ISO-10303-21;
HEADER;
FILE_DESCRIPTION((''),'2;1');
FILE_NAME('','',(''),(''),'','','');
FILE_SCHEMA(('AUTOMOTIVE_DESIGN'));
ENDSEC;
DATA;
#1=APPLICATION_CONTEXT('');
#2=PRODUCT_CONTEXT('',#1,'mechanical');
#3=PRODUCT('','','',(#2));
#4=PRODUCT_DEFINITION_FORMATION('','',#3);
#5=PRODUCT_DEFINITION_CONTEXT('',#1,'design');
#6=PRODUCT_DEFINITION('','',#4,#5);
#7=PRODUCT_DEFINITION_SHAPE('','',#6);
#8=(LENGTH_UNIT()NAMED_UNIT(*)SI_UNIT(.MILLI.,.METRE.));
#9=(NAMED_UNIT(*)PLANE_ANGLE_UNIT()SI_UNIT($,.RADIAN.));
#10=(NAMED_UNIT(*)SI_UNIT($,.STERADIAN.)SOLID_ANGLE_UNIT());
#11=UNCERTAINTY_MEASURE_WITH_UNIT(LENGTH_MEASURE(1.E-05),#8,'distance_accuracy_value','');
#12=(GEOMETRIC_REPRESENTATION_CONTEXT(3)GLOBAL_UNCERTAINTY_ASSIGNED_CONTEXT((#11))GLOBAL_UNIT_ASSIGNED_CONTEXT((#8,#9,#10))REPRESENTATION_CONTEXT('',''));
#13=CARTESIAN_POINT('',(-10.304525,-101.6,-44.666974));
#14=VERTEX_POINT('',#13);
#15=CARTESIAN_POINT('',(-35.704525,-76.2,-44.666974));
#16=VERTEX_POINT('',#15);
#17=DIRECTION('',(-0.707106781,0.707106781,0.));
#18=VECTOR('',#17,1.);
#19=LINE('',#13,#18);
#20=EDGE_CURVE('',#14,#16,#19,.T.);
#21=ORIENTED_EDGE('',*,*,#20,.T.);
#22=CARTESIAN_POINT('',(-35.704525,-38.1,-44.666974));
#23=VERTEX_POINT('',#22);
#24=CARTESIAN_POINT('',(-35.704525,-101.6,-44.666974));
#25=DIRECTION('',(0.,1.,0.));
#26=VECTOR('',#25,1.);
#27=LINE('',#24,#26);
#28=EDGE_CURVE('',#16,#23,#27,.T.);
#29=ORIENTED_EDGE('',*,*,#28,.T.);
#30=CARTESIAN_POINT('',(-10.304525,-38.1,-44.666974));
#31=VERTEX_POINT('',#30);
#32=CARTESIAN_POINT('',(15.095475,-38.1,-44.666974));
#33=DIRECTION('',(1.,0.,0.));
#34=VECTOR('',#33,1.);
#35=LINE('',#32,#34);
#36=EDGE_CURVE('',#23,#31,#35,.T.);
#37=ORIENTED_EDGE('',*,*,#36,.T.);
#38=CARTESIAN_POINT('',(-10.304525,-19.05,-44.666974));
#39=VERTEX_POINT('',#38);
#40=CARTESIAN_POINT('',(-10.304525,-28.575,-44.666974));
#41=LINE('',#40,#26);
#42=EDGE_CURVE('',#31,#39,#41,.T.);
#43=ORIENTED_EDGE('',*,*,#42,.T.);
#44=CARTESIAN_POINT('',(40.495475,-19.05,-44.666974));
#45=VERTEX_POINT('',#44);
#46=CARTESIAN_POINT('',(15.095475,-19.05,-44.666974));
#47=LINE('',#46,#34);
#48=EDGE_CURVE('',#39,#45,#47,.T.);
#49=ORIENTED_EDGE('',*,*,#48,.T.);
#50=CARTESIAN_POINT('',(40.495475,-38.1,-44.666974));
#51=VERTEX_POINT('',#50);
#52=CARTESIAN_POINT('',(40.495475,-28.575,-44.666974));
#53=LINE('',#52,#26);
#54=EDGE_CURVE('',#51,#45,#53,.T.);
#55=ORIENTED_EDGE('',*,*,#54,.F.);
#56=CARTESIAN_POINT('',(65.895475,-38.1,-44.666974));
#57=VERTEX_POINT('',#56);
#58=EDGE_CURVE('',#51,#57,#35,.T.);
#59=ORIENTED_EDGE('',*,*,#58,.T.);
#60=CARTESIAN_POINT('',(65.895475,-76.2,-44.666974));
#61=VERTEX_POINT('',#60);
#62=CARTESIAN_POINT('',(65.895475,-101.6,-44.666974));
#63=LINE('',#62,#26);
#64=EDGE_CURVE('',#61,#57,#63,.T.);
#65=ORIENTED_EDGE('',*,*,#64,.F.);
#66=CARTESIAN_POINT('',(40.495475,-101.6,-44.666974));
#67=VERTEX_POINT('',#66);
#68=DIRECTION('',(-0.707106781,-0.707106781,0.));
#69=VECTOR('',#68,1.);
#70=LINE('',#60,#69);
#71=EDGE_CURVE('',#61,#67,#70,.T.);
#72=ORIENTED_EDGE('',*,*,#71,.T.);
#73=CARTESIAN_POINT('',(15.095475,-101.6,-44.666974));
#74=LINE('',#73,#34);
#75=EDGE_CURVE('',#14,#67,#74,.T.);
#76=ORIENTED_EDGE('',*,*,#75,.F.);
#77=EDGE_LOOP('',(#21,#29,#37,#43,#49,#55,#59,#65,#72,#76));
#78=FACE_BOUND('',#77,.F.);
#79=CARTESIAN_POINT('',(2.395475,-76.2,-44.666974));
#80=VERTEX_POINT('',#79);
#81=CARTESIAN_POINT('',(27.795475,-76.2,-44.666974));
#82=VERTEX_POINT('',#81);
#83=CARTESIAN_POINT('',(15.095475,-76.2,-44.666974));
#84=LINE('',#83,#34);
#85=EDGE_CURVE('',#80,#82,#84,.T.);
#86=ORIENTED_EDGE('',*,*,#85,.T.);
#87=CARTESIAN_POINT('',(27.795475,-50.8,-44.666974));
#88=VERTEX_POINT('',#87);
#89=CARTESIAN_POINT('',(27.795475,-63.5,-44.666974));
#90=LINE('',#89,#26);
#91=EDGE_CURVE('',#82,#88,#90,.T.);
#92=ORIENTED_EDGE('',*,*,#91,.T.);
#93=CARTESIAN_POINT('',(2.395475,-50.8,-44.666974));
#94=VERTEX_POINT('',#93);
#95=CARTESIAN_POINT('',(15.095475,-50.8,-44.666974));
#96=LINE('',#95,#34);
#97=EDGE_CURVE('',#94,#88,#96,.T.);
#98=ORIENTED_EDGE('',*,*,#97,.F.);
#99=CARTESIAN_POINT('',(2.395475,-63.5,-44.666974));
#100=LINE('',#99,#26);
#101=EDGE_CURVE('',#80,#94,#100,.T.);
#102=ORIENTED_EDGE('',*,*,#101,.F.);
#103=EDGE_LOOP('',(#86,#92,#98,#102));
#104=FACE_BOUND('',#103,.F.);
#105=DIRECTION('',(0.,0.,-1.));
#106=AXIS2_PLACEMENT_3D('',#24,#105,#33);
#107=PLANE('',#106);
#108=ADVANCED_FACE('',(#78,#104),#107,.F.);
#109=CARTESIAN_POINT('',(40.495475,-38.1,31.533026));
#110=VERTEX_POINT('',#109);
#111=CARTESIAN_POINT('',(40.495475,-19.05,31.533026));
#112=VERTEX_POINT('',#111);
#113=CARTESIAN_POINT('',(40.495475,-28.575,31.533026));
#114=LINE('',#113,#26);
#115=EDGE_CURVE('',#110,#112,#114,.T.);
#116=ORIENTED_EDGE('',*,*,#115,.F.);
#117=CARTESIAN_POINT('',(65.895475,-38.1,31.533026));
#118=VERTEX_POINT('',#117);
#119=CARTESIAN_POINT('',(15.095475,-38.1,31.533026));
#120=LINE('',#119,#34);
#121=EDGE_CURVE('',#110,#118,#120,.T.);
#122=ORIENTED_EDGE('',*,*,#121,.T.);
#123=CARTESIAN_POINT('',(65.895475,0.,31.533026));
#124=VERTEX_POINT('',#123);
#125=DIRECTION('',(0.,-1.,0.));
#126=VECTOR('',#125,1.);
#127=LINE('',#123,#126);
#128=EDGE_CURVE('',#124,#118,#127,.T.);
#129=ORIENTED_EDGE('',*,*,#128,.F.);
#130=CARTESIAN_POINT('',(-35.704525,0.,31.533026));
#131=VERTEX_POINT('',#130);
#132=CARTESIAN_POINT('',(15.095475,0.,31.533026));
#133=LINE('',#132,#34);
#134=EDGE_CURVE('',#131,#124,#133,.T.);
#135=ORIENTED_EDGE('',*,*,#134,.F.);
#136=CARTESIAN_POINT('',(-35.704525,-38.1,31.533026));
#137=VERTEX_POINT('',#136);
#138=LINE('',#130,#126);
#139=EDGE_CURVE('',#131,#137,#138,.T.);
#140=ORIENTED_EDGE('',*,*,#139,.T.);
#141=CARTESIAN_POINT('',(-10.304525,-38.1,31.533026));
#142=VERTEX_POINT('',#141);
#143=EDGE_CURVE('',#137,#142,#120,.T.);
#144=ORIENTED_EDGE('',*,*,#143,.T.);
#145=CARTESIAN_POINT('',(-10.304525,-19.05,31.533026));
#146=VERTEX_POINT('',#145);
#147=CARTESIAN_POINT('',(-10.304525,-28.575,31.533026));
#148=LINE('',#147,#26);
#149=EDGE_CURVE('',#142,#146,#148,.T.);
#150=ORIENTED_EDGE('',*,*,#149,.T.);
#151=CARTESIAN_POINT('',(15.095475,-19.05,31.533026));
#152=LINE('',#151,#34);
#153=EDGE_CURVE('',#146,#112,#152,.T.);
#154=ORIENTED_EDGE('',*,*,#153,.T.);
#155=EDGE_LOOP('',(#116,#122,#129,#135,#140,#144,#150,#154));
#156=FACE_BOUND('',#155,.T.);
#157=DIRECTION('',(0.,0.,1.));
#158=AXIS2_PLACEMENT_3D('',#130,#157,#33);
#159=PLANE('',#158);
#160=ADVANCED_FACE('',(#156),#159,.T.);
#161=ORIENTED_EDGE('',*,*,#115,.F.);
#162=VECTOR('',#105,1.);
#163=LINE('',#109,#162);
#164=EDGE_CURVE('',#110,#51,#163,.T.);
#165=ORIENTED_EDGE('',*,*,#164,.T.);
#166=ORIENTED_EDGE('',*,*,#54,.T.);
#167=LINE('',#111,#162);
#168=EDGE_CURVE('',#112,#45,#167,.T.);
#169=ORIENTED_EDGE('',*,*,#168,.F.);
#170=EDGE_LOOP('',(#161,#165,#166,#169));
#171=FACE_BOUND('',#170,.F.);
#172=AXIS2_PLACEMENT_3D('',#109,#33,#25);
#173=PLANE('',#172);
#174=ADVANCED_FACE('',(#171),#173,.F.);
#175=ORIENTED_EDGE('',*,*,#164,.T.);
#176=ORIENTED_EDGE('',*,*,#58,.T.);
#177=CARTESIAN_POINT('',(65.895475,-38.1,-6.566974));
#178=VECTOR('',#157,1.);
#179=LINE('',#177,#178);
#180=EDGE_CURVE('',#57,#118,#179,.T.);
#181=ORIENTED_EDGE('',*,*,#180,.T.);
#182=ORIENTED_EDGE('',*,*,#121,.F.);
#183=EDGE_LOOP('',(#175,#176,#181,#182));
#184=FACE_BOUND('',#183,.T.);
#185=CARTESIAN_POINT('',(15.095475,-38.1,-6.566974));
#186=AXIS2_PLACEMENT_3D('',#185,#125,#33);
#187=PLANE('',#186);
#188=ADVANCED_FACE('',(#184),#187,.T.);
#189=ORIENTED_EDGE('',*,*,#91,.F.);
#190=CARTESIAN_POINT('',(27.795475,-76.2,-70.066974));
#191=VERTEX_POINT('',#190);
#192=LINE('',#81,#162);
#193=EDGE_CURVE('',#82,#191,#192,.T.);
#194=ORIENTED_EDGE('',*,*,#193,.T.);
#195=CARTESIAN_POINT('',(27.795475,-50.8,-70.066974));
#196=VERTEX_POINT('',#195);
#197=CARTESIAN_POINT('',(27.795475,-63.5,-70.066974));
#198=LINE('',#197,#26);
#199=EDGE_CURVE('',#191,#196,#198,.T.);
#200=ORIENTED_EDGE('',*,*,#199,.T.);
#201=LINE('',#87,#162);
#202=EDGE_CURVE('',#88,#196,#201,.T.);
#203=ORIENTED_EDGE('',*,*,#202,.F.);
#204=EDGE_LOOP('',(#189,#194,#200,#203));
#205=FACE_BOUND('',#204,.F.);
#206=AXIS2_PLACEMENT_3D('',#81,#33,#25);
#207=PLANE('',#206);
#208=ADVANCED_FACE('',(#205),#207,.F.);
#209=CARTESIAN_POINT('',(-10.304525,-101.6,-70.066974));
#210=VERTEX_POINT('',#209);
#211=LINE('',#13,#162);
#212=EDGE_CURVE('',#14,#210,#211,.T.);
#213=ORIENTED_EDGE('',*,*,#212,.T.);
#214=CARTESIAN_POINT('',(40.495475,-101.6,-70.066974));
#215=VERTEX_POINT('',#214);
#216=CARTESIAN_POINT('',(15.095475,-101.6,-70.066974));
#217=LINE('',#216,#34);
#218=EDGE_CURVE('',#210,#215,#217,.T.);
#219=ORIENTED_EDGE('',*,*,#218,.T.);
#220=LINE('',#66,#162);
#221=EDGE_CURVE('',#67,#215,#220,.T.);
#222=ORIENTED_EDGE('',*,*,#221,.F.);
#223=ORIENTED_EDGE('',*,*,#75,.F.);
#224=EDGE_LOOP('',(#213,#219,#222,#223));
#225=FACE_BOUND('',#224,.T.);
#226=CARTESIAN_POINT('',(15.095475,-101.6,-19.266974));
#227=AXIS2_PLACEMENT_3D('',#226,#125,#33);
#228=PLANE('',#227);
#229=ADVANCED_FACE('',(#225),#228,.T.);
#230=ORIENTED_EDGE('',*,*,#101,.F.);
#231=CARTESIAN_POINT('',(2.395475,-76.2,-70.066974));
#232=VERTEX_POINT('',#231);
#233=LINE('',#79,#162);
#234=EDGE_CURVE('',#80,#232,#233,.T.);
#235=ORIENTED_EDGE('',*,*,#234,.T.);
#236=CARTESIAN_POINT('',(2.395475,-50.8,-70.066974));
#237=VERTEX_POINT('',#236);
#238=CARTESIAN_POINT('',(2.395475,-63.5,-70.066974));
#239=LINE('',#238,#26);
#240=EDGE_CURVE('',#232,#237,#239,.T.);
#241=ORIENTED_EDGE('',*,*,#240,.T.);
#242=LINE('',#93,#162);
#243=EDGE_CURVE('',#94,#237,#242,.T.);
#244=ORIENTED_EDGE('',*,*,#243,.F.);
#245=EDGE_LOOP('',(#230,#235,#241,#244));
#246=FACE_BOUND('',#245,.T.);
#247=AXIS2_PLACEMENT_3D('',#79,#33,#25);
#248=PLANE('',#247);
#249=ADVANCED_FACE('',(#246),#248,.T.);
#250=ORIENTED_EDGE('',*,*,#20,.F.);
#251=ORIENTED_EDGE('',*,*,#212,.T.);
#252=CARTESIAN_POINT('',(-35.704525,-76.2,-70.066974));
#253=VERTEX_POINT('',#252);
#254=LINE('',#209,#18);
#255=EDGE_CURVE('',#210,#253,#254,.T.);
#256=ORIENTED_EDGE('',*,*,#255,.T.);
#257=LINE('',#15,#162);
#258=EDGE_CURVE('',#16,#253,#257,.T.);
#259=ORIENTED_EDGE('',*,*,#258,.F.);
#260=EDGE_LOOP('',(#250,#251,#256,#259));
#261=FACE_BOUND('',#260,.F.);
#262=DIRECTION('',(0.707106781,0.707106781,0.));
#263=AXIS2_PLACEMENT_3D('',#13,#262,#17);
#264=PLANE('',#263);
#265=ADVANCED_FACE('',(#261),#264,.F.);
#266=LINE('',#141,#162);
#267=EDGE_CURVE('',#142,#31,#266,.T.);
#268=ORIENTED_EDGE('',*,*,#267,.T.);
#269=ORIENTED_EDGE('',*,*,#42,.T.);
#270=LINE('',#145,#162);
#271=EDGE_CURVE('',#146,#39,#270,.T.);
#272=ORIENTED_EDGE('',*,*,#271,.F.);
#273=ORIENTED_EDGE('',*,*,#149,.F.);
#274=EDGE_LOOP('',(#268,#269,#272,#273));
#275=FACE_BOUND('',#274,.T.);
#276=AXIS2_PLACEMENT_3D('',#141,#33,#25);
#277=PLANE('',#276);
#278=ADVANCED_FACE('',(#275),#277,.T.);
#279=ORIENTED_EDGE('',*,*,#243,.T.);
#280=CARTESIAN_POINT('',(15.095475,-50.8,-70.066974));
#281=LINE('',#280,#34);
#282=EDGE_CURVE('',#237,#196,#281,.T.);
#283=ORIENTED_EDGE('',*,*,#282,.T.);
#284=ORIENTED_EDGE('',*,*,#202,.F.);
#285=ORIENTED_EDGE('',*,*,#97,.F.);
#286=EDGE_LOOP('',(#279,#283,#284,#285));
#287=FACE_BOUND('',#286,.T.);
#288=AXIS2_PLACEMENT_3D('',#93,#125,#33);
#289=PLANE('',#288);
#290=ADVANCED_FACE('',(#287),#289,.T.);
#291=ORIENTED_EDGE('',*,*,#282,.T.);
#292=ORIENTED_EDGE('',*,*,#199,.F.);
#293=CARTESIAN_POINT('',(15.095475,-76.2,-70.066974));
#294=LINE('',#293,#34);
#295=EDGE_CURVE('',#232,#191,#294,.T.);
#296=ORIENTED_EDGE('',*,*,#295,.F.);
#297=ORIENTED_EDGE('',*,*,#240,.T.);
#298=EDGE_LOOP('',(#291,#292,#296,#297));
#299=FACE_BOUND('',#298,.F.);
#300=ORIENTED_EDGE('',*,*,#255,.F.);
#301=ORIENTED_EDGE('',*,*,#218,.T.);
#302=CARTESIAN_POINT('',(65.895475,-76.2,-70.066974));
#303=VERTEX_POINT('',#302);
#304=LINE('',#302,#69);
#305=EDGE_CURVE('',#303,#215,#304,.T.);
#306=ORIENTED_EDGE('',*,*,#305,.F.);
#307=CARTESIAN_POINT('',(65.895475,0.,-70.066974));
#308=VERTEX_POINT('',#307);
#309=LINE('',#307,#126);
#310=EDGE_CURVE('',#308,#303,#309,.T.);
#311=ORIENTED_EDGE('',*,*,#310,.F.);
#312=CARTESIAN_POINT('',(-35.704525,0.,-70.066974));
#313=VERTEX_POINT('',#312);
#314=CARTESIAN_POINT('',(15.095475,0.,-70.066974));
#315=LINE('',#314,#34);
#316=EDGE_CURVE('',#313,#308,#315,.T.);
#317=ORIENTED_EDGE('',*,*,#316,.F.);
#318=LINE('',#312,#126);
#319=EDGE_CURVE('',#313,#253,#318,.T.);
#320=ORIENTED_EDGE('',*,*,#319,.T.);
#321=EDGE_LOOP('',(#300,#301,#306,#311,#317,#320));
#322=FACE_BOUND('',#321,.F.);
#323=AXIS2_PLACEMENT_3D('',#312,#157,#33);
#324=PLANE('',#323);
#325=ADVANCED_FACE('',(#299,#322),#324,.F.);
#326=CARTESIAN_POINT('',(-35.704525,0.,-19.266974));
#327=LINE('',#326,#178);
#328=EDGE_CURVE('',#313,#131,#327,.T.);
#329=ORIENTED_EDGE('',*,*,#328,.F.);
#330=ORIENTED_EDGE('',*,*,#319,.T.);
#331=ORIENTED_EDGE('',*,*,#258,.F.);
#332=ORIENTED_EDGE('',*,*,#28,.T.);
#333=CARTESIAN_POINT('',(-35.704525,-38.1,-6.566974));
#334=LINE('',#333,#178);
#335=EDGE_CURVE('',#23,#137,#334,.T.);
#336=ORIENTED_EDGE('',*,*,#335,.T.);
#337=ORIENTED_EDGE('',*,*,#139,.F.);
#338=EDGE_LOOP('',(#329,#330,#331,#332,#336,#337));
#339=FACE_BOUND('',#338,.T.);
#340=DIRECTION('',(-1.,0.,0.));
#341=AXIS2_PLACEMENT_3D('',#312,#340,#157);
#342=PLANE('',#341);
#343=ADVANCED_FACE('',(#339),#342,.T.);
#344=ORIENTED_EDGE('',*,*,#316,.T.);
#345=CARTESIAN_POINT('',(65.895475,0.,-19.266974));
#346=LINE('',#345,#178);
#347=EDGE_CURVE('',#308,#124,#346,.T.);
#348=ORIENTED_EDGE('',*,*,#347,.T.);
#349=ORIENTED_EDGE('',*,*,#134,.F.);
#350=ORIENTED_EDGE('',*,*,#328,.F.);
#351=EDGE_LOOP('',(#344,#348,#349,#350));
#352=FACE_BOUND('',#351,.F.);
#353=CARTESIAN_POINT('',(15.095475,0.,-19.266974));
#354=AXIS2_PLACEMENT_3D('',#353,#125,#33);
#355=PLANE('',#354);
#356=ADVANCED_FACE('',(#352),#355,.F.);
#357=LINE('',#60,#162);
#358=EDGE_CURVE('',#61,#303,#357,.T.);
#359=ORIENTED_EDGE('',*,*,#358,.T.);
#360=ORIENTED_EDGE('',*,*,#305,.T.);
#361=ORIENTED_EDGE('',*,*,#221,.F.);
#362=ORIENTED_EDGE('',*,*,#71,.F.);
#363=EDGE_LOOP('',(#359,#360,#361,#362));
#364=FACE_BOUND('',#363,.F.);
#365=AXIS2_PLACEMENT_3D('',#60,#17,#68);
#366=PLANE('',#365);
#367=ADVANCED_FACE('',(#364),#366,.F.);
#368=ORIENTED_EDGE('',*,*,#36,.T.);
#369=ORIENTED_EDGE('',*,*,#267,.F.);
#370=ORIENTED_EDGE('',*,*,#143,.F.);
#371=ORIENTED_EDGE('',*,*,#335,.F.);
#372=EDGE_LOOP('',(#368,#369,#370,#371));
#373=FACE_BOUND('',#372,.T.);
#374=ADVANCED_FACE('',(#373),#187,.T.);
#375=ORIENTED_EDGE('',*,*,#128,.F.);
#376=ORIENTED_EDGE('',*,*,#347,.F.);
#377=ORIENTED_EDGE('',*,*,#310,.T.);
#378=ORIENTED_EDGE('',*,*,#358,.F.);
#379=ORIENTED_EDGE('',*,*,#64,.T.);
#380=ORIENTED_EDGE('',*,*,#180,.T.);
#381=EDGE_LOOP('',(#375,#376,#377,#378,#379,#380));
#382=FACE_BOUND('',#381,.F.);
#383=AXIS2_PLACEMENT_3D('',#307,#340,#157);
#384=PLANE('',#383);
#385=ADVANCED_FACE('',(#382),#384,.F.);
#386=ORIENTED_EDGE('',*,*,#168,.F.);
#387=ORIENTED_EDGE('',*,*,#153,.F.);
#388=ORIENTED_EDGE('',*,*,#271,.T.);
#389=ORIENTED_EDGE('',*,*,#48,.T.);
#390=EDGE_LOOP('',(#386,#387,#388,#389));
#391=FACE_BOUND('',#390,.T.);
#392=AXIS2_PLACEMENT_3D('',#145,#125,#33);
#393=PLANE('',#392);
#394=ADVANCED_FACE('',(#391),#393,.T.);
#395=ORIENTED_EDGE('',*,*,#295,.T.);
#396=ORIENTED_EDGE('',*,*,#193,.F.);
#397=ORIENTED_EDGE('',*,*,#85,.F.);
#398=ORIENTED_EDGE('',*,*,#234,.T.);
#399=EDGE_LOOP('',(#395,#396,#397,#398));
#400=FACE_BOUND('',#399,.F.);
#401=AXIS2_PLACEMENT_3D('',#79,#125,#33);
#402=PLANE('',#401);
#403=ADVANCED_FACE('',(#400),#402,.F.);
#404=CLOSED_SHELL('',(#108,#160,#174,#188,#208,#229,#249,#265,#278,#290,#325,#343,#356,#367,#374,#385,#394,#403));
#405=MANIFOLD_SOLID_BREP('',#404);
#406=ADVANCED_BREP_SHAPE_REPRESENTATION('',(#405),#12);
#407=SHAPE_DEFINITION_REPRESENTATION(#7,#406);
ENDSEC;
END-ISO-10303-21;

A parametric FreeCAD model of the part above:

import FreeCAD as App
import Part
import Sketcher

V = App.Vector
Q = App.Units.Quantity


def add_polygon(sketch, points):
    """Adds a closed chain of lines whose ends are joined by coincident constraints."""
    first, n = sketch.GeometryCount, len(points)
    for a, b in zip(points, points[1:] + points[:1]):
        sketch.addGeometry(Part.LineSegment(App.Vector(*a, 0), App.Vector(*b, 0)), False)
    for i in range(n):
        sketch.addConstraint(Sketcher.Constraint("Coincident", first + i, 2, first + (i + 1) % n, 1))

doc = App.newDocument("Part")
body = doc.addObject("PartDesign::Body", "Body")

sketch1 = body.newObject("Sketcher::SketchObject", "Sketch")
sketch1.AttachmentSupport = (doc.getObject("XZ_Plane"), [""])
sketch1.MapMode = "FlatFace"
add_polygon(sketch1, [(-35.704525, 31.533026), (-35.704525, -70.066974), (65.895475, -70.066974), (65.895475, 31.533026)])
sketch1.addConstraint([
    Sketcher.Constraint("Vertical", 0),
    Sketcher.Constraint("Horizontal", 1),
    Sketcher.Constraint("Vertical", 2),
    Sketcher.Constraint("Horizontal", 3),
    Sketcher.Constraint("Equal", 3, 0),
    Sketcher.Constraint("DistanceX", 1, 1, 1, 2, Q("4 in")),
    Sketcher.Constraint("DistanceX", 0, 2, -1, 1, 35.704525),
    Sketcher.Constraint("DistanceY", 0, 2, -1, 1, 70.066974),
])
pad1 = body.newObject("PartDesign::Pad", "Pad")
pad1.Profile = sketch1
pad1.Length = Q("4 in")

sketch2 = body.newObject("Sketcher::SketchObject", "Sketch001")
sketch2.AttachmentSupport = (doc.getObject("XZ_Plane"), [""])
sketch2.MapMode = "FlatFace"
sketch2.AttachmentOffset = App.Placement(V(0, 0, 4 * 25.4), App.Rotation())
add_polygon(sketch2, [(-35.704525, 31.533026), (-35.704525, -44.666974), (65.895475, -44.666974), (65.895475, 31.533026)])
sketch2.addConstraint([
    Sketcher.Constraint("Vertical", 0),
    Sketcher.Constraint("Horizontal", 1),
    Sketcher.Constraint("Vertical", 2),
    Sketcher.Constraint("Horizontal", 3),
    Sketcher.Constraint("DistanceX", 1, 1, 1, 2, Q("4 in")),
    Sketcher.Constraint("DistanceY", 0, 2, 0, 1, Q("3 in")),
    Sketcher.Constraint("DistanceX", 0, 2, -1, 1, 35.704525),
    Sketcher.Constraint("DistanceY", 0, 2, -1, 1, 44.666974),
])
pocket1 = body.newObject("PartDesign::Pocket", "Pocket")
pocket1.Profile = sketch2
pocket1.Length = Q("2.5 in")

sketch3 = body.newObject("Sketcher::SketchObject", "Sketch002")
sketch3.AttachmentSupport = (doc.getObject("XY_Plane"), [""])
sketch3.MapMode = "FlatFace"
sketch3.AttachmentOffset = App.Placement(V(0, 0, 31.533026), App.Rotation())
add_polygon(sketch3, [(-10.304525, -19.05), (-10.304525, -38.1), (40.495475, -38.1), (40.495475, -19.05)])
sketch3.addConstraint([
    Sketcher.Constraint("Vertical", 0),
    Sketcher.Constraint("Horizontal", 1),
    Sketcher.Constraint("Vertical", 2),
    Sketcher.Constraint("Horizontal", 3),
    Sketcher.Constraint("DistanceX", 1, 1, 1, 2, Q("2 in")),
    Sketcher.Constraint("DistanceY", 0, 2, 0, 1, Q("0.75 in")),
    Sketcher.Constraint("DistanceY", 0, 2, -1, 1, Q("1.5 in")),
    Sketcher.Constraint("DistanceX", 0, 2, -1, 1, 10.304525),
])
pocket2 = body.newObject("PartDesign::Pocket", "Pocket001")
pocket2.Profile = sketch3
pocket2.Length = Q("3 in")

sketch4 = body.newObject("Sketcher::SketchObject", "Sketch003")
sketch4.AttachmentSupport = (doc.getObject("XY_Plane"), [""])
sketch4.MapMode = "FlatFace"
sketch4.AttachmentOffset = App.Placement(V(0, 0, -44.666974), App.Rotation())
add_polygon(sketch4, [(-35.704525, -76.2), (-35.704525, -101.6), (-10.304525, -101.6)])
add_polygon(sketch4, [(65.895475, -76.2), (40.495475, -101.6), (65.895475, -101.6)])
sketch4.addConstraint([
    Sketcher.Constraint("Vertical", 0),
    Sketcher.Constraint("Horizontal", 1),
    Sketcher.Constraint("Horizontal", 4),
    Sketcher.Constraint("Vertical", 5),
    Sketcher.Constraint("Perpendicular", 2, 3),
    Sketcher.Constraint("Horizontal", 1, 2, 3, 2),
    Sketcher.Constraint("Horizontal", 2, 2, 5, 2),
    Sketcher.Constraint("Equal", 1, 4),
    Sketcher.Constraint("DistanceX", 1, 1, 1, 2, Q("1 in")),
    Sketcher.Constraint("DistanceY", 0, 2, -1, 1, Q("4 in")),
    Sketcher.Constraint("DistanceX", 1, 2, 3, 2, Q("2 in")),
    Sketcher.Constraint("DistanceX", 0, 2, -1, 1, 35.704525),
])
pocket3 = body.newObject("PartDesign::Pocket", "Pocket002")
pocket3.Profile = sketch4
pocket3.Length = Q("1 in")

sketch5 = body.newObject("Sketcher::SketchObject", "Sketch004")
sketch5.AttachmentSupport = (doc.getObject("XY_Plane"), [""])
sketch5.MapMode = "FlatFace"
sketch5.AttachmentOffset = App.Placement(V(0, 0, -44.666974), App.Rotation())
add_polygon(sketch5, [(2.395475, -50.8), (2.395475, -76.2), (27.795475, -76.2), (27.795475, -50.8)])
sketch5.addConstraint([
    Sketcher.Constraint("Vertical", 0),
    Sketcher.Constraint("Horizontal", 1),
    Sketcher.Constraint("Vertical", 2),
    Sketcher.Constraint("Horizontal", 3),
    Sketcher.Constraint("Equal", 3, 0),
    Sketcher.Constraint("DistanceX", 1, 1, 1, 2, Q("1 in")),
    Sketcher.Constraint("DistanceY", 0, 2, -1, 1, Q("3 in")),
    Sketcher.Constraint("DistanceX", -1, 1, 0, 2, 2.395475),
])
pocket4 = body.newObject("PartDesign::Pocket", "Pocket003")
pocket4.Profile = sketch5
pocket4.Length = Q("1 in")

doc.recompute()
